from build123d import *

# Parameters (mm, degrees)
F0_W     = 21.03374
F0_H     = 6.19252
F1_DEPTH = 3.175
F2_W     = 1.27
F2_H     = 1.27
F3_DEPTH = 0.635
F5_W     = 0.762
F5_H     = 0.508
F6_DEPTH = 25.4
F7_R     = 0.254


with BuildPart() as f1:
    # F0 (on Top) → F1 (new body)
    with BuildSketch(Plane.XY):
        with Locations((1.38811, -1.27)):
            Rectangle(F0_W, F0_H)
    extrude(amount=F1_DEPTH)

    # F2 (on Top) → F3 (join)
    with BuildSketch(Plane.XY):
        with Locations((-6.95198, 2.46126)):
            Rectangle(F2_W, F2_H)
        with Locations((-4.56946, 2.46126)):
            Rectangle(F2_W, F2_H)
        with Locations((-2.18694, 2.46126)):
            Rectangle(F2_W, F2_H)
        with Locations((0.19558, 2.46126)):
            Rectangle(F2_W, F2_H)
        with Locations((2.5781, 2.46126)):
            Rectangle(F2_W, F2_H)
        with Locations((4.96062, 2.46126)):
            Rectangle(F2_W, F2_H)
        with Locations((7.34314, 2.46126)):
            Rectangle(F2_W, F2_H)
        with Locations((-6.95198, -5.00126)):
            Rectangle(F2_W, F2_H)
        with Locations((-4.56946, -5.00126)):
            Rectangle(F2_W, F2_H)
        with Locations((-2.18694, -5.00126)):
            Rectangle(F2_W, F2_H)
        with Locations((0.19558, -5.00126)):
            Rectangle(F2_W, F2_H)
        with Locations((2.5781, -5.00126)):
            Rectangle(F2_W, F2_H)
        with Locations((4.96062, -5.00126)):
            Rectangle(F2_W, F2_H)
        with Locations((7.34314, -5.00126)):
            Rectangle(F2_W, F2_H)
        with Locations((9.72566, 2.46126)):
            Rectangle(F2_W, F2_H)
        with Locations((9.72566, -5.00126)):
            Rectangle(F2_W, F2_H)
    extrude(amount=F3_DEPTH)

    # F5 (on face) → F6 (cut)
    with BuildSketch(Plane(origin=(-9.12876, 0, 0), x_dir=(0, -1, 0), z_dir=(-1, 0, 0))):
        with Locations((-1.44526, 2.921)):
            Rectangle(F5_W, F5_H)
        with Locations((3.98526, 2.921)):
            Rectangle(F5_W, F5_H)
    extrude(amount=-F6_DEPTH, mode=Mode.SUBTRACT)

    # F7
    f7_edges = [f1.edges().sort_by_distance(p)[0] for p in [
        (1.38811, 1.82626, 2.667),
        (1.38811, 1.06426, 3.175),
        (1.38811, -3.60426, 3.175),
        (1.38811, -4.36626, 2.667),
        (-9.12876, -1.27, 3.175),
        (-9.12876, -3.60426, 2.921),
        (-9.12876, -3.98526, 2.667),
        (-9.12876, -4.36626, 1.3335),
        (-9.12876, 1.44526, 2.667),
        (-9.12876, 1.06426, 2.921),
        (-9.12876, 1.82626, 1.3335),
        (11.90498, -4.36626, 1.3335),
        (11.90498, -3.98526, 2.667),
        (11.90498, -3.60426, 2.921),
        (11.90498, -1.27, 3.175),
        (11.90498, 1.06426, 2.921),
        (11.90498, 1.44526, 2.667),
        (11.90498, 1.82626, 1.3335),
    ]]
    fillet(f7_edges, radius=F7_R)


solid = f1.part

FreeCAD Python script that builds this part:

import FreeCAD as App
import Part
import Sketcher
Q = App.Units.Quantity


def edges_at(feature, points):
    """Names of the edges that pass closest to the given points."""
    edges = feature.Shape.Edges
    near = lambda p: min(range(len(edges)), key=lambda i: edges[i].distToShape(Part.Vertex(*p))[0])
    return sorted({f"Edge{near(p) + 1}" for p in points})

doc = App.newDocument("Part")
body = doc.addObject("PartDesign::Body", "Body")

sketch1 = doc.addObject("Sketcher::SketchObject", "Sketch")
body.addObject(sketch1)
sketch1.AttachmentSupport = (doc.XY_Plane, [""])
sketch1.MapMode = "FlatFace"
sketch1.addGeometry([
    Part.LineSegment(App.Vector(-9, 2, 0), App.Vector(-9, -4, 0)),
    Part.LineSegment(App.Vector(-9, -4, 0), App.Vector(12, -4, 0)),
    Part.LineSegment(App.Vector(12, -4, 0), App.Vector(12, 2, 0)),
    Part.LineSegment(App.Vector(12, 2, 0), App.Vector(-9, 2, 0)),
], False)
sketch1.addConstraint([
    Sketcher.Constraint("Coincident", 0, 2, 1, 1),
    Sketcher.Constraint("Coincident", 1, 2, 2, 1),
    Sketcher.Constraint("Coincident", 2, 2, 3, 1),
    Sketcher.Constraint("Coincident", 3, 2, 0, 1),
    Sketcher.Constraint("Vertical", 0),
    Sketcher.Constraint("Horizontal", 1),
    Sketcher.Constraint("Vertical", 2),
    Sketcher.Constraint("Horizontal", 3),
    Sketcher.Constraint("DistanceX", 1, 1, 1, 2, Q("0.8281 in")),
    Sketcher.Constraint("DistanceY", 0, 2, 0, 1, Q("0.2438 in")),
    Sketcher.Constraint("DistanceX", 0, 2, -1, 1, Q("0.3594 in")),
    Sketcher.Constraint("DistanceY", 0, 2, -1, 1, Q("0.1719 in")),
])
pad1 = doc.addObject("PartDesign::Pad", "Pad")
body.addObject(pad1)
pad1.Profile = sketch1
pad1.Length = Q("0.125 in")

sketch2 = doc.addObject("Sketcher::SketchObject", "Sketch001")
body.addObject(sketch2)
sketch2.AttachmentSupport = (doc.XY_Plane, [""])
sketch2.MapMode = "FlatFace"
sketch2.addGeometry([
    Part.LineSegment(App.Vector(-7.6, 3.1, 0), App.Vector(-7.6, 1.8, 0)),
    Part.LineSegment(App.Vector(-7.6, 1.8, 0), App.Vector(-6.3, 1.8, 0)),
    Part.LineSegment(App.Vector(-6.3, 1.8, 0), App.Vector(-6.3, 3.1, 0)),
    Part.LineSegment(App.Vector(-6.3, 3.1, 0), App.Vector(-7.6, 3.1, 0)),
    Part.LineSegment(App.Vector(-5.2, 3.1, 0), App.Vector(-5.2, 1.8, 0)),
    Part.LineSegment(App.Vector(-5.2, 1.8, 0), App.Vector(-3.9, 1.8, 0)),
    Part.LineSegment(App.Vector(-3.9, 1.8, 0), App.Vector(-3.9, 3.1, 0)),
    Part.LineSegment(App.Vector(-3.9, 3.1, 0), App.Vector(-5.2, 3.1, 0)),
    Part.LineSegment(App.Vector(-2.8, 3.1, 0), App.Vector(-2.8, 1.8, 0)),
    Part.LineSegment(App.Vector(-2.8, 1.8, 0), App.Vector(-1.6, 1.8, 0)),
    Part.LineSegment(App.Vector(-1.6, 1.8, 0), App.Vector(-1.6, 3.1, 0)),
    Part.LineSegment(App.Vector(-1.6, 3.1, 0), App.Vector(-2.8, 3.1, 0)),
    Part.LineSegment(App.Vector(-0.4, 3.1, 0), App.Vector(-0.4, 1.8, 0)),
    Part.LineSegment(App.Vector(-0.4, 1.8, 0), App.Vector(0.8, 1.8, 0)),
    Part.LineSegment(App.Vector(0.8, 1.8, 0), App.Vector(0.8, 3.1, 0)),
    Part.LineSegment(App.Vector(0.8, 3.1, 0), App.Vector(-0.4, 3.1, 0)),
    Part.LineSegment(App.Vector(1.9, 3.1, 0), App.Vector(1.9, 1.8, 0)),
    Part.LineSegment(App.Vector(1.9, 1.8, 0), App.Vector(3.2, 1.8, 0)),
    Part.LineSegment(App.Vector(3.2, 1.8, 0), App.Vector(3.2, 3.1, 0)),
    Part.LineSegment(App.Vector(3.2, 3.1, 0), App.Vector(1.9, 3.1, 0)),
    Part.LineSegment(App.Vector(4.3, 3.1, 0), App.Vector(4.3, 1.8, 0)),
    Part.LineSegment(App.Vector(4.3, 1.8, 0), App.Vector(5.6, 1.8, 0)),
    Part.LineSegment(App.Vector(5.6, 1.8, 0), App.Vector(5.6, 3.1, 0)),
    Part.LineSegment(App.Vector(5.6, 3.1, 0), App.Vector(4.3, 3.1, 0)),
    Part.LineSegment(App.Vector(6.7, 3.1, 0), App.Vector(6.7, 1.8, 0)),
    Part.LineSegment(App.Vector(6.7, 1.8, 0), App.Vector(8, 1.8, 0)),
    Part.LineSegment(App.Vector(8, 1.8, 0), App.Vector(8, 3.1, 0)),
    Part.LineSegment(App.Vector(8, 3.1, 0), App.Vector(6.7, 3.1, 0)),
    Part.LineSegment(App.Vector(-7.6, -4.4, 0), App.Vector(-7.6, -5.6, 0)),
    Part.LineSegment(App.Vector(-7.6, -5.6, 0), App.Vector(-6.3, -5.6, 0)),
    Part.LineSegment(App.Vector(-6.3, -5.6, 0), App.Vector(-6.3, -4.4, 0)),
    Part.LineSegment(App.Vector(-6.3, -4.4, 0), App.Vector(-7.6, -4.4, 0)),
    Part.LineSegment(App.Vector(-5.2, -4.4, 0), App.Vector(-5.2, -5.6, 0)),
    Part.LineSegment(App.Vector(-5.2, -5.6, 0), App.Vector(-3.9, -5.6, 0)),
    Part.LineSegment(App.Vector(-3.9, -5.6, 0), App.Vector(-3.9, -4.4, 0)),
    Part.LineSegment(App.Vector(-3.9, -4.4, 0), App.Vector(-5.2, -4.4, 0)),
    Part.LineSegment(App.Vector(-2.8, -4.4, 0), App.Vector(-2.8, -5.6, 0)),
    Part.LineSegment(App.Vector(-2.8, -5.6, 0), App.Vector(-1.6, -5.6, 0)),
    Part.LineSegment(App.Vector(-1.6, -5.6, 0), App.Vector(-1.6, -4.4, 0)),
    Part.LineSegment(App.Vector(-1.6, -4.4, 0), App.Vector(-2.8, -4.4, 0)),
    Part.LineSegment(App.Vector(-0.4, -4.4, 0), App.Vector(-0.4, -5.6, 0)),
    Part.LineSegment(App.Vector(-0.4, -5.6, 0), App.Vector(0.8, -5.6, 0)),
    Part.LineSegment(App.Vector(0.8, -5.6, 0), App.Vector(0.8, -4.4, 0)),
    Part.LineSegment(App.Vector(0.8, -4.4, 0), App.Vector(-0.4, -4.4, 0)),
    Part.LineSegment(App.Vector(1.9, -4.4, 0), App.Vector(1.9, -5.6, 0)),
    Part.LineSegment(App.Vector(1.9, -5.6, 0), App.Vector(3.2, -5.6, 0)),
    Part.LineSegment(App.Vector(3.2, -5.6, 0), App.Vector(3.2, -4.4, 0)),
    Part.LineSegment(App.Vector(3.2, -4.4, 0), App.Vector(1.9, -4.4, 0)),
    Part.LineSegment(App.Vector(4.3, -4.4, 0), App.Vector(4.3, -5.6, 0)),
    Part.LineSegment(App.Vector(4.3, -5.6, 0), App.Vector(5.6, -5.6, 0)),
    Part.LineSegment(App.Vector(5.6, -5.6, 0), App.Vector(5.6, -4.4, 0)),
    Part.LineSegment(App.Vector(5.6, -4.4, 0), App.Vector(4.3, -4.4, 0)),
    Part.LineSegment(App.Vector(6.7, -4.4, 0), App.Vector(6.7, -5.6, 0)),
    Part.LineSegment(App.Vector(6.7, -5.6, 0), App.Vector(8, -5.6, 0)),
    Part.LineSegment(App.Vector(8, -5.6, 0), App.Vector(8, -4.4, 0)),
    Part.LineSegment(App.Vector(8, -4.4, 0), App.Vector(6.7, -4.4, 0)),
    Part.LineSegment(App.Vector(9.1, 3.1, 0), App.Vector(9.1, 1.8, 0)),
    Part.LineSegment(App.Vector(9.1, 1.8, 0), App.Vector(10.4, 1.8, 0)),
    Part.LineSegment(App.Vector(10.4, 1.8, 0), App.Vector(10.4, 3.1, 0)),
    Part.LineSegment(App.Vector(10.4, 3.1, 0), App.Vector(9.1, 3.1, 0)),
    Part.LineSegment(App.Vector(9.1, -4.4, 0), App.Vector(9.1, -5.6, 0)),
    Part.LineSegment(App.Vector(9.1, -5.6, 0), App.Vector(10.4, -5.6, 0)),
    Part.LineSegment(App.Vector(10.4, -5.6, 0), App.Vector(10.4, -4.4, 0)),
    Part.LineSegment(App.Vector(10.4, -4.4, 0), App.Vector(9.1, -4.4, 0)),
], False)
sketch2.addConstraint([
    Sketcher.Constraint("Coincident", 0, 2, 1, 1),
    Sketcher.Constraint("Coincident", 1, 2, 2, 1),
    Sketcher.Constraint("Coincident", 2, 2, 3, 1),
    Sketcher.Constraint("Coincident", 3, 2, 0, 1),
    Sketcher.Constraint("Coincident", 4, 2, 5, 1),
    Sketcher.Constraint("Coincident", 5, 2, 6, 1),
    Sketcher.Constraint("Coincident", 6, 2, 7, 1),
    Sketcher.Constraint("Coincident", 7, 2, 4, 1),
    Sketcher.Constraint("Coincident", 8, 2, 9, 1),
    Sketcher.Constraint("Coincident", 9, 2, 10, 1),
    Sketcher.Constraint("Coincident", 10, 2, 11, 1),
    Sketcher.Constraint("Coincident", 11, 2, 8, 1),
    Sketcher.Constraint("Coincident", 12, 2, 13, 1),
    Sketcher.Constraint("Coincident", 13, 2, 14, 1),
    Sketcher.Constraint("Coincident", 14, 2, 15, 1),
    Sketcher.Constraint("Coincident", 15, 2, 12, 1),
    Sketcher.Constraint("Coincident", 16, 2, 17, 1),
    Sketcher.Constraint("Coincident", 17, 2, 18, 1),
    Sketcher.Constraint("Coincident", 18, 2, 19, 1),
    Sketcher.Constraint("Coincident", 19, 2, 16, 1),
    Sketcher.Constraint("Coincident", 20, 2, 21, 1),
    Sketcher.Constraint("Coincident", 21, 2, 22, 1),
    Sketcher.Constraint("Coincident", 22, 2, 23, 1),
    Sketcher.Constraint("Coincident", 23, 2, 20, 1),
    Sketcher.Constraint("Coincident", 24, 2, 25, 1),
    Sketcher.Constraint("Coincident", 25, 2, 26, 1),
    Sketcher.Constraint("Coincident", 26, 2, 27, 1),
    Sketcher.Constraint("Coincident", 27, 2, 24, 1),
    Sketcher.Constraint("Coincident", 28, 2, 29, 1),
    Sketcher.Constraint("Coincident", 29, 2, 30, 1),
    Sketcher.Constraint("Coincident", 30, 2, 31, 1),
    Sketcher.Constraint("Coincident", 31, 2, 28, 1),
    Sketcher.Constraint("Coincident", 32, 2, 33, 1),
    Sketcher.Constraint("Coincident", 33, 2, 34, 1),
    Sketcher.Constraint("Coincident", 34, 2, 35, 1),
    Sketcher.Constraint("Coincident", 35, 2, 32, 1),
    Sketcher.Constraint("Coincident", 36, 2, 37, 1),
    Sketcher.Constraint("Coincident", 37, 2, 38, 1),
    Sketcher.Constraint("Coincident", 38, 2, 39, 1),
    Sketcher.Constraint("Coincident", 39, 2, 36, 1),
    Sketcher.Constraint("Coincident", 40, 2, 41, 1),
    Sketcher.Constraint("Coincident", 41, 2, 42, 1),
    Sketcher.Constraint("Coincident", 42, 2, 43, 1),
    Sketcher.Constraint("Coincident", 43, 2, 40, 1),
    Sketcher.Constraint("Coincident", 44, 2, 45, 1),
    Sketcher.Constraint("Coincident", 45, 2, 46, 1),
    Sketcher.Constraint("Coincident", 46, 2, 47, 1),
    Sketcher.Constraint("Coincident", 47, 2, 44, 1),
    Sketcher.Constraint("Coincident", 48, 2, 49, 1),
    Sketcher.Constraint("Coincident", 49, 2, 50, 1),
    Sketcher.Constraint("Coincident", 50, 2, 51, 1),
    Sketcher.Constraint("Coincident", 51, 2, 48, 1),
    Sketcher.Constraint("Coincident", 52, 2, 53, 1),
    Sketcher.Constraint("Coincident", 53, 2, 54, 1),
    Sketcher.Constraint("Coincident", 54, 2, 55, 1),
    Sketcher.Constraint("Coincident", 55, 2, 52, 1),
    Sketcher.Constraint("Coincident", 56, 2, 57, 1),
    Sketcher.Constraint("Coincident", 57, 2, 58, 1),
    Sketcher.Constraint("Coincident", 58, 2, 59, 1),
    Sketcher.Constraint("Coincident", 59, 2, 56, 1),
    Sketcher.Constraint("Coincident", 60, 2, 61, 1),
    Sketcher.Constraint("Coincident", 61, 2, 62, 1),
    Sketcher.Constraint("Coincident", 62, 2, 63, 1),
    Sketcher.Constraint("Coincident", 63, 2, 60, 1),
    Sketcher.Constraint("Vertical", 0),
    Sketcher.Constraint("Horizontal", 1),
    Sketcher.Constraint("Vertical", 2),
    Sketcher.Constraint("Horizontal", 3),
    Sketcher.Constraint("Vertical", 4),
    Sketcher.Constraint("Horizontal", 5),
    Sketcher.Constraint("Vertical", 6),
    Sketcher.Constraint("Horizontal", 7),
    Sketcher.Constraint("Vertical", 8),
    Sketcher.Constraint("Horizontal", 9),
    Sketcher.Constraint("Vertical", 10),
    Sketcher.Constraint("Horizontal", 11),
    Sketcher.Constraint("Vertical", 12),
    Sketcher.Constraint("Horizontal", 13),
    Sketcher.Constraint("Vertical", 14),
    Sketcher.Constraint("Horizontal", 15),
    Sketcher.Constraint("Vertical", 16),
    Sketcher.Constraint("Horizontal", 17),
    Sketcher.Constraint("Vertical", 18),
    Sketcher.Constraint("Horizontal", 19),
    Sketcher.Constraint("Vertical", 20),
    Sketcher.Constraint("Horizontal", 21),
    Sketcher.Constraint("Vertical", 22),
    Sketcher.Constraint("Horizontal", 23),
    Sketcher.Constraint("Vertical", 24),
    Sketcher.Constraint("Horizontal", 25),
    Sketcher.Constraint("Vertical", 26),
    Sketcher.Constraint("Horizontal", 27),
    Sketcher.Constraint("Vertical", 28),
    Sketcher.Constraint("Horizontal", 29),
    Sketcher.Constraint("Vertical", 30),
    Sketcher.Constraint("Horizontal", 31),
    Sketcher.Constraint("Vertical", 32),
    Sketcher.Constraint("Horizontal", 33),
    Sketcher.Constraint("Vertical", 34),
    Sketcher.Constraint("Horizontal", 35),
    Sketcher.Constraint("Vertical", 36),
    Sketcher.Constraint("Horizontal", 37),
    Sketcher.Constraint("Vertical", 38),
    Sketcher.Constraint("Horizontal", 39),
    Sketcher.Constraint("Vertical", 40),
    Sketcher.Constraint("Horizontal", 41),
    Sketcher.Constraint("Vertical", 42),
    Sketcher.Constraint("Horizontal", 43),
    Sketcher.Constraint("Vertical", 44),
    Sketcher.Constraint("Horizontal", 45),
    Sketcher.Constraint("Vertical", 46),
    Sketcher.Constraint("Horizontal", 47),
    Sketcher.Constraint("Vertical", 48),
    Sketcher.Constraint("Horizontal", 49),
    Sketcher.Constraint("Vertical", 50),
    Sketcher.Constraint("Horizontal", 51),
    Sketcher.Constraint("Vertical", 52),
    Sketcher.Constraint("Horizontal", 53),
    Sketcher.Constraint("Vertical", 54),
    Sketcher.Constraint("Horizontal", 55),
    Sketcher.Constraint("Vertical", 56),
    Sketcher.Constraint("Horizontal", 57),
    Sketcher.Constraint("Vertical", 58),
    Sketcher.Constraint("Horizontal", 59),
    Sketcher.Constraint("Vertical", 60),
    Sketcher.Constraint("Horizontal", 61),
    Sketcher.Constraint("Vertical", 62),
    Sketcher.Constraint("Horizontal", 63),
    Sketcher.Constraint("Horizontal", 1, 2, 4, 2),
    Sketcher.Constraint("Horizontal", 3, 2, 6, 2),
    Sketcher.Constraint("Horizontal", 5, 2, 8, 2),
    Sketcher.Constraint("Horizontal", 7, 2, 10, 2),
    Sketcher.Constraint("Horizontal", 9, 2, 12, 2),
    Sketcher.Constraint("Horizontal", 11, 2, 14, 2),
    Sketcher.Constraint("Horizontal", 13, 2, 16, 2),
    Sketcher.Constraint("Horizontal", 15, 2, 18, 2),
    Sketcher.Constraint("Horizontal", 17, 2, 20, 2),
    Sketcher.Constraint("Horizontal", 19, 2, 22, 2),
    Sketcher.Constraint("Horizontal", 21, 2, 24, 2),
    Sketcher.Constraint("Horizontal", 23, 2, 26, 2),
    Sketcher.Constraint("Horizontal", 29, 2, 32, 2),
    Sketcher.Constraint("Horizontal", 31, 2, 34, 2),
    Sketcher.Constraint("Horizontal", 33, 2, 36, 2),
    Sketcher.Constraint("Horizontal", 35, 2, 38, 2),
    Sketcher.Constraint("Horizontal", 37, 2, 40, 2),
    Sketcher.Constraint("Horizontal", 39, 2, 42, 2),
    Sketcher.Constraint("Horizontal", 41, 2, 44, 2),
    Sketcher.Constraint("Horizontal", 43, 2, 46, 2),
    Sketcher.Constraint("Horizontal", 45, 2, 48, 2),
    Sketcher.Constraint("Horizontal", 47, 2, 50, 2),
    Sketcher.Constraint("Horizontal", 49, 2, 52, 2),
    Sketcher.Constraint("Horizontal", 51, 2, 54, 2),
    Sketcher.Constraint("Horizontal", 25, 2, 56, 2),
    Sketcher.Constraint("Horizontal", 27, 2, 58, 2),
    Sketcher.Constraint("Horizontal", 53, 2, 60, 2),
    Sketcher.Constraint("Horizontal", 55, 2, 62, 2),
    Sketcher.Constraint("Vertical", 3, 2, 28, 2),
    Sketcher.Constraint("Vertical", 2, 2, 29, 2),
    Sketcher.Constraint("Vertical", 7, 2, 32, 2),
    Sketcher.Constraint("Vertical", 6, 2, 33, 2),
    Sketcher.Constraint("Vertical", 11, 2, 36, 2),
    Sketcher.Constraint("Vertical", 10, 2, 37, 2),
    Sketcher.Constraint("Vertical", 15, 2, 40, 2),
    Sketcher.Constraint("Vertical", 14, 2, 41, 2),
    Sketcher.Constraint("Vertical", 19, 2, 44, 2),
    Sketcher.Constraint("Vertical", 18, 2, 45, 2),
    Sketcher.Constraint("Vertical", 23, 2, 48, 2),
    Sketcher.Constraint("Vertical", 22, 2, 49, 2),
    Sketcher.Constraint("Vertical", 27, 2, 52, 2),
    Sketcher.Constraint("Vertical", 26, 2, 53, 2),
    Sketcher.Constraint("Vertical", 59, 2, 60, 2),
    Sketcher.Constraint("Vertical", 58, 2, 61, 2),
    Sketcher.Constraint("Equal", 3, 5),
    Sketcher.Constraint("Equal", 7, 9),
    Sketcher.Constraint("Equal", 11, 13),
    Sketcher.Constraint("Equal", 15, 17),
    Sketcher.Constraint("Equal", 19, 21),
    Sketcher.Constraint("Equal", 23, 25),
    Sketcher.Constraint("Equal", 55, 57),
    Sketcher.Constraint("Equal", 63, 0),
    Sketcher.Constraint("Equal", 26, 28),
    Sketcher.Constraint("DistanceX", 1, 1, 1, 2, Q("0.05 in")),
    Sketcher.Constraint("DistanceX", 0, 2, -1, 1, Q("0.2987 in")),
    Sketcher.Constraint("DistanceY", -1, 1, 0, 2, Q("0.0719 in")),
    Sketcher.Constraint("DistanceX", 4, 2, -1, 1, Q("0.2049 in")),
    Sketcher.Constraint("DistanceX", 8, 2, -1, 1, Q("0.1111 in")),
    Sketcher.Constraint("DistanceX", 12, 2, -1, 1, Q("0.0173 in")),
    Sketcher.Constraint("DistanceX", -1, 1, 16, 2, Q("0.0765 in")),
    Sketcher.Constraint("DistanceX", -1, 1, 20, 2, Q("0.1703 in")),
    Sketcher.Constraint("DistanceX", -1, 1, 24, 2, Q("0.2641 in")),
    Sketcher.Constraint("DistanceY", 28, 2, -1, 1, Q("0.2219 in")),
    Sketcher.Constraint("DistanceX", -1, 1, 56, 2, Q("0.3579 in")),
])
pad2 = doc.addObject("PartDesign::Pad", "Pad001")
body.addObject(pad2)
pad2.Profile = sketch2
pad2.Length = Q("0.025 in")

sketch3 = doc.addObject("Sketcher::SketchObject", "Sketch002")
body.addObject(sketch3)
sketch3.AttachmentSupport = (doc.YZ_Plane, [""])
sketch3.MapMode = "FlatFace"
sketch3.AttachmentOffset = App.Placement(App.Vector(0, 0, -0.3594 * 25.4), App.Rotation())
sketch3.addGeometry([
    Part.LineSegment(App.Vector(1.8, 3.2, 0), App.Vector(1.8, 2.7, 0)),
    Part.LineSegment(App.Vector(1.8, 2.7, 0), App.Vector(1.1, 2.7, 0)),
    Part.LineSegment(App.Vector(1.1, 2.7, 0), App.Vector(1.1, 3.2, 0)),
    Part.LineSegment(App.Vector(1.1, 3.2, 0), App.Vector(1.8, 3.2, 0)),
    Part.LineSegment(App.Vector(-3.6, 3.2, 0), App.Vector(-3.6, 2.7, 0)),
    Part.LineSegment(App.Vector(-3.6, 2.7, 0), App.Vector(-4.4, 2.7, 0)),
    Part.LineSegment(App.Vector(-4.4, 2.7, 0), App.Vector(-4.4, 3.2, 0)),
    Part.LineSegment(App.Vector(-4.4, 3.2, 0), App.Vector(-3.6, 3.2, 0)),
], False)
sketch3.addConstraint([
    Sketcher.Constraint("Coincident", 0, 2, 1, 1),
    Sketcher.Constraint("Coincident", 1, 2, 2, 1),
    Sketcher.Constraint("Coincident", 2, 2, 3, 1),
    Sketcher.Constraint("Coincident", 3, 2, 0, 1),
    Sketcher.Constraint("Coincident", 4, 2, 5, 1),
    Sketcher.Constraint("Coincident", 5, 2, 6, 1),
    Sketcher.Constraint("Coincident", 6, 2, 7, 1),
    Sketcher.Constraint("Coincident", 7, 2, 4, 1),
    Sketcher.Constraint("Vertical", 0),
    Sketcher.Constraint("Horizontal", 1),
    Sketcher.Constraint("Vertical", 2),
    Sketcher.Constraint("Horizontal", 3),
    Sketcher.Constraint("Vertical", 4),
    Sketcher.Constraint("Horizontal", 5),
    Sketcher.Constraint("Vertical", 6),
    Sketcher.Constraint("Horizontal", 7),
    Sketcher.Constraint("Horizontal", 1, 2, 4, 2),
    Sketcher.Constraint("Horizontal", 3, 2, 6, 2),
    Sketcher.Constraint("Equal", 3, 5),
    Sketcher.Constraint("DistanceX", 1, 2, 1, 1, Q("0.03 in")),
    Sketcher.Constraint("DistanceY", 0, 2, 0, 1, Q("0.02 in")),
    Sketcher.Constraint("DistanceY", -1, 1, 0, 2, Q("0.105 in")),
    Sketcher.Constraint("DistanceX", -1, 1, 0, 2, Q("0.0719 in")),
    Sketcher.Constraint("DistanceX", 4, 2, -1, 1, Q("0.1419 in")),
])
pocket1 = doc.addObject("PartDesign::Pocket", "Pocket")
body.addObject(pocket1)
pocket1.Profile = sketch3
pocket1.Length = Q("1 in")
pocket1.Reversed = True
doc.recompute()

fillet = doc.addObject("PartDesign::Fillet", "Fillet")
body.addObject(fillet)
fillet.Base = (pocket1, edges_at(pocket1, [
    (1.388, 1.826, 2.667),
    (1.388, 1.064, 3.175),
    (1.388, -3.604, 3.175),
    (1.388, -4.366, 2.667),
    (-9.129, -1.27, 3.175),
    (-9.129, -3.604, 2.921),
    (-9.129, -3.985, 2.667),
    (-9.129, -4.366, 1.333),
    (-9.129, 1.445, 2.667),
    (-9.129, 1.064, 2.921),
    (-9.129, 1.826, 1.333),
    (11.905, -4.366, 1.333),
    (11.905, -3.985, 2.667),
    (11.905, -3.604, 2.921),
    (11.905, -1.27, 3.175),
    (11.905, 1.064, 2.921),
    (11.905, 1.445, 2.667),
    (11.905, 1.826, 1.333),
]))
fillet.Radius = Q("0.01 in")

doc.recompute()
